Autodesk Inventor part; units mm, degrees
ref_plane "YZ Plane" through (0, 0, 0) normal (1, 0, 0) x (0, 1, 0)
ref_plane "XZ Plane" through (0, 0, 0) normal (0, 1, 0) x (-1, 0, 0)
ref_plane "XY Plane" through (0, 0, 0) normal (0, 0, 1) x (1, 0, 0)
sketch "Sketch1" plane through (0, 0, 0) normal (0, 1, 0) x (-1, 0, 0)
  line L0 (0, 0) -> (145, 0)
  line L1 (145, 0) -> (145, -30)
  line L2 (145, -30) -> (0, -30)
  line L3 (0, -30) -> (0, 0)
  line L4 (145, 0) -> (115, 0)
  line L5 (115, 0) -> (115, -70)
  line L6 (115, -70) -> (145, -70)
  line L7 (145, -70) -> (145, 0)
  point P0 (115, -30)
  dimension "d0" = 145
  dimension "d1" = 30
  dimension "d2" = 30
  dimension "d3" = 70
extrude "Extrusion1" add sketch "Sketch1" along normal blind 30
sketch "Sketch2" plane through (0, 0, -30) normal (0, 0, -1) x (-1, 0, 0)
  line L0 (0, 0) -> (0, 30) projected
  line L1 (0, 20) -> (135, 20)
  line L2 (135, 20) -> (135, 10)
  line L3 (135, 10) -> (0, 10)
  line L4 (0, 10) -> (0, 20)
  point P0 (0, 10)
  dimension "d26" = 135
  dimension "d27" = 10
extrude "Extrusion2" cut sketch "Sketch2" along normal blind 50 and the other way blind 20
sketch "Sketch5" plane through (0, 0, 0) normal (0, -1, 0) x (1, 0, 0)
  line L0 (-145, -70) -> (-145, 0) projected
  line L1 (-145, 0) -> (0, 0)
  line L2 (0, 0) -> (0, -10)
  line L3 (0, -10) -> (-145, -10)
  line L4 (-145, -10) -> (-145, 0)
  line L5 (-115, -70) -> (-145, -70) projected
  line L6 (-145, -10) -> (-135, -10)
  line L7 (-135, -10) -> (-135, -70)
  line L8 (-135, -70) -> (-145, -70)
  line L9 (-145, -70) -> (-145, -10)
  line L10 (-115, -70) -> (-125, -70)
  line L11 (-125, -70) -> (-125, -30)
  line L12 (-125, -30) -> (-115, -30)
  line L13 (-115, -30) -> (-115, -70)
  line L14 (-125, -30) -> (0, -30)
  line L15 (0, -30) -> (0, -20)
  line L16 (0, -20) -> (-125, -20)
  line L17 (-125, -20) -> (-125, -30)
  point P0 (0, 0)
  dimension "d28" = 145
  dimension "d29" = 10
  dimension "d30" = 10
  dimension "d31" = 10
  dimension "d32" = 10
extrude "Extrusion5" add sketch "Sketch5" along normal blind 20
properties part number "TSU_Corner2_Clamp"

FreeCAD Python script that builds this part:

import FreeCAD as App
import Part
import Sketcher
from FreeCAD import Vector


def add_polygon(sketch, points):
    """Adds a closed chain of lines whose ends are joined by coincident constraints."""
    first, n = sketch.GeometryCount, len(points)
    for a, b in zip(points, points[1:] + points[:1]):
        sketch.addGeometry(Part.LineSegment(App.Vector(*a, 0), App.Vector(*b, 0)), False)
    for i in range(n):
        sketch.addConstraint(Sketcher.Constraint("Coincident", first + i, 2, first + (i + 1) % n, 1))

doc = App.newDocument("Part")
body = doc.addObject("PartDesign::Body", "Body")

# Sketch on XZ plane
sketch1 = body.newObject("Sketcher::SketchObject", "Sketch")
sketch1.AttachmentSupport = (doc.getObject("XZ_Plane"), [""])
sketch1.MapMode = "FlatFace"
add_polygon(sketch1, [(0, 0), (0, -30), (-115, -30), (-115, -70), (-145, -70), (-145, 0)])  # lines 0-5
sketch1.addConstraint(Sketcher.Constraint("Vertical", 0))
sketch1.addConstraint(Sketcher.Constraint("Horizontal", 1))
sketch1.addConstraint(Sketcher.Constraint("Vertical", 2))
sketch1.addConstraint(Sketcher.Constraint("Horizontal", 3))
sketch1.addConstraint(Sketcher.Constraint("Vertical", 4))
sketch1.addConstraint(Sketcher.Constraint("Horizontal", 5))
sketch1.addConstraint(Sketcher.Constraint("Coincident", 5, 2, -1, 1))
sketch1.addConstraint(Sketcher.Constraint("Equal", 3, 0))
sketch1.addConstraint(Sketcher.Constraint("DistanceX", 3, 2, 3, 1, 30.0))
sketch1.addConstraint(Sketcher.Constraint("DistanceX", 5, 1, 5, 2, 145.0))
sketch1.addConstraint(Sketcher.Constraint("DistanceY", 4, 1, 4, 2, 70.0))
pad1 = body.newObject("PartDesign::Pad", "Pad")
pad1.Profile = sketch1
pad1.Length = 30
pad1.Reversed = True

# Sketch on XY plane
sketch2 = body.newObject("Sketcher::SketchObject", "Sketch001")
sketch2.AttachmentSupport = (doc.getObject("XY_Plane"), [""])
sketch2.MapMode = "FlatFace"
sketch2.AttachmentOffset = App.Placement(Vector(0, 0, -30), App.Rotation())
add_polygon(sketch2, [(0, 20), (0, 10), (-135, 10), (-135, 20)])  # lines 0-3
sketch2.addConstraint(Sketcher.Constraint("Vertical", 0))
sketch2.addConstraint(Sketcher.Constraint("Horizontal", 1))
sketch2.addConstraint(Sketcher.Constraint("Vertical", 2))
sketch2.addConstraint(Sketcher.Constraint("Horizontal", 3))
sketch2.addConstraint(Sketcher.Constraint("PointOnObject", 0, 2, -2))
sketch2.addConstraint(Sketcher.Constraint("DistanceX", 1, 2, 1, 1, 135.0))
sketch2.addConstraint(Sketcher.Constraint("DistanceY", 0, 2, 0, 1, 10.0))
sketch2.addConstraint(Sketcher.Constraint("DistanceY", -1, 1, 0, 2, 10.0))
pocket1 = body.newObject("PartDesign::Pocket", "Pocket")
pocket1.Profile = sketch2
pocket1.Type = "TwoLengths"
pocket1.Length = 50
pocket1.Length2 = 20

# Sketch on XZ plane
sketch3 = body.newObject("Sketcher::SketchObject", "Sketch002")
sketch3.AttachmentSupport = (doc.getObject("XZ_Plane"), [""])
sketch3.MapMode = "FlatFace"
add_polygon(sketch3, [(-125, -70), (-115, -70), (-115, -30), (0, -30), (0, -20), (-125, -20)])  # lines 0-5
add_polygon(sketch3, [(-145, -70), (-135, -70), (-135, -10), (0, -10), (0, 0), (-145, 0)])  # lines 6-11
sketch3.addConstraint(Sketcher.Constraint("Horizontal", 0))
sketch3.addConstraint(Sketcher.Constraint("Vertical", 1))
sketch3.addConstraint(Sketcher.Constraint("Horizontal", 2))
sketch3.addConstraint(Sketcher.Constraint("Vertical", 3))
sketch3.addConstraint(Sketcher.Constraint("Horizontal", 4))
sketch3.addConstraint(Sketcher.Constraint("Vertical", 5))
sketch3.addConstraint(Sketcher.Constraint("Horizontal", 6))
sketch3.addConstraint(Sketcher.Constraint("Vertical", 7))
sketch3.addConstraint(Sketcher.Constraint("Horizontal", 8))
sketch3.addConstraint(Sketcher.Constraint("Vertical", 9))
sketch3.addConstraint(Sketcher.Constraint("Horizontal", 10))
sketch3.addConstraint(Sketcher.Constraint("Vertical", 11))
sketch3.addConstraint(Sketcher.Constraint("Coincident", 9, 2, -1, 1))
sketch3.addConstraint(Sketcher.Constraint("PointOnObject", 2, 2, -2))
sketch3.addConstraint(Sketcher.Constraint("Horizontal", 5, 2, 6, 2))
sketch3.addConstraint(Sketcher.Constraint("Equal", 0, 6))
sketch3.addConstraint(Sketcher.Constraint("Equal", 6, 3))
sketch3.addConstraint(Sketcher.Constraint("Equal", 3, 9))
sketch3.addConstraint(Sketcher.Constraint("DistanceX", 0, 1, 0, 2, 10.0))
sketch3.addConstraint(Sketcher.Constraint("DistanceX", 10, 2, 10, 1, 145.0))
sketch3.addConstraint(Sketcher.Constraint("DistanceX", 6, 2, 5, 2, 10.0))
sketch3.addConstraint(Sketcher.Constraint("DistanceY", 4, 2, 7, 2, 10.0))
sketch3.addConstraint(Sketcher.Constraint("DistanceY", 1, 1, 1, 2, 40.0))
pad2 = body.newObject("PartDesign::Pad", "Pad001")
pad2.Profile = sketch3
pad2.Length = 20

doc.recompute()
